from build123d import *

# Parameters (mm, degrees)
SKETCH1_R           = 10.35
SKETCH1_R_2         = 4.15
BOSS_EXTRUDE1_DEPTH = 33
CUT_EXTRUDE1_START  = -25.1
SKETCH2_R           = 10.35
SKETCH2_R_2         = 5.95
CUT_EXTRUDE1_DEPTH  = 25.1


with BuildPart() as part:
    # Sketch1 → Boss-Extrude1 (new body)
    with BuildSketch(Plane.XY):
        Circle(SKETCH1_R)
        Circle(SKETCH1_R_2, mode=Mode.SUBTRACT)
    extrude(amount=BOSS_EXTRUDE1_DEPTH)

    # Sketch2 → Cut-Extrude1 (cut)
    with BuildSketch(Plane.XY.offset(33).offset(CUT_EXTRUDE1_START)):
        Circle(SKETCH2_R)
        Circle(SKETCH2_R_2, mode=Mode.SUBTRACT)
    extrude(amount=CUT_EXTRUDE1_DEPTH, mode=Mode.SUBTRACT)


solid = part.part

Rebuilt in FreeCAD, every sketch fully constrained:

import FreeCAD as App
import Part
import Sketcher

doc = App.newDocument("Part")
body = doc.addObject("PartDesign::Body", "Body")

# Sketch on XY plane
sketch1 = doc.addObject("Sketcher::SketchObject", "Sketch")
body.addObject(sketch1)
sketch1.AttachmentSupport = (doc.XY_Plane, [""])
sketch1.MapMode = "FlatFace"
sketch1.addGeometry([
    Part.Circle(App.Vector(0, 0, 0), App.Vector(0, 0, 1), 10.3),
    Part.Circle(App.Vector(0, 0, 0), App.Vector(0, 0, 1), 4.2),
], False)
sketch1.addConstraint([
    Sketcher.Constraint("Coincident", 0, 3, -1, 1),
    Sketcher.Constraint("Coincident", 1, 3, -1, 1),
    Sketcher.Constraint("Diameter", 0, 20.7),
    Sketcher.Constraint("Diameter", 1, 8.3),
])
pad1 = doc.addObject("PartDesign::Pad", "Pad")
body.addObject(pad1)
pad1.Profile = sketch1
pad1.Length = 33

# Sketch on XY plane
sketch2 = doc.addObject("Sketcher::SketchObject", "Sketch001")
body.addObject(sketch2)
sketch2.AttachmentSupport = (doc.XY_Plane, [""])
sketch2.MapMode = "FlatFace"
sketch2.AttachmentOffset = App.Placement(App.Vector(0, 0, 7.9), App.Rotation())
sketch2.addGeometry([
    Part.Circle(App.Vector(0, 0, 0), App.Vector(0, 0, 1), 10),
    Part.Circle(App.Vector(0, 0, 0), App.Vector(0, 0, 1), 6),
], False)
sketch2.addConstraint([
    Sketcher.Constraint("Coincident", 0, 3, -1, 1),
    Sketcher.Constraint("Coincident", 1, 3, -1, 1),
    Sketcher.Constraint("Diameter", 0, 20.7),
    Sketcher.Constraint("Diameter", 1, 11.9),
])
pocket1 = doc.addObject("PartDesign::Pocket", "Pocket")
body.addObject(pocket1)
pocket1.Profile = sketch2
pocket1.Length = 25.1
pocket1.Reversed = True

doc.recompute()
